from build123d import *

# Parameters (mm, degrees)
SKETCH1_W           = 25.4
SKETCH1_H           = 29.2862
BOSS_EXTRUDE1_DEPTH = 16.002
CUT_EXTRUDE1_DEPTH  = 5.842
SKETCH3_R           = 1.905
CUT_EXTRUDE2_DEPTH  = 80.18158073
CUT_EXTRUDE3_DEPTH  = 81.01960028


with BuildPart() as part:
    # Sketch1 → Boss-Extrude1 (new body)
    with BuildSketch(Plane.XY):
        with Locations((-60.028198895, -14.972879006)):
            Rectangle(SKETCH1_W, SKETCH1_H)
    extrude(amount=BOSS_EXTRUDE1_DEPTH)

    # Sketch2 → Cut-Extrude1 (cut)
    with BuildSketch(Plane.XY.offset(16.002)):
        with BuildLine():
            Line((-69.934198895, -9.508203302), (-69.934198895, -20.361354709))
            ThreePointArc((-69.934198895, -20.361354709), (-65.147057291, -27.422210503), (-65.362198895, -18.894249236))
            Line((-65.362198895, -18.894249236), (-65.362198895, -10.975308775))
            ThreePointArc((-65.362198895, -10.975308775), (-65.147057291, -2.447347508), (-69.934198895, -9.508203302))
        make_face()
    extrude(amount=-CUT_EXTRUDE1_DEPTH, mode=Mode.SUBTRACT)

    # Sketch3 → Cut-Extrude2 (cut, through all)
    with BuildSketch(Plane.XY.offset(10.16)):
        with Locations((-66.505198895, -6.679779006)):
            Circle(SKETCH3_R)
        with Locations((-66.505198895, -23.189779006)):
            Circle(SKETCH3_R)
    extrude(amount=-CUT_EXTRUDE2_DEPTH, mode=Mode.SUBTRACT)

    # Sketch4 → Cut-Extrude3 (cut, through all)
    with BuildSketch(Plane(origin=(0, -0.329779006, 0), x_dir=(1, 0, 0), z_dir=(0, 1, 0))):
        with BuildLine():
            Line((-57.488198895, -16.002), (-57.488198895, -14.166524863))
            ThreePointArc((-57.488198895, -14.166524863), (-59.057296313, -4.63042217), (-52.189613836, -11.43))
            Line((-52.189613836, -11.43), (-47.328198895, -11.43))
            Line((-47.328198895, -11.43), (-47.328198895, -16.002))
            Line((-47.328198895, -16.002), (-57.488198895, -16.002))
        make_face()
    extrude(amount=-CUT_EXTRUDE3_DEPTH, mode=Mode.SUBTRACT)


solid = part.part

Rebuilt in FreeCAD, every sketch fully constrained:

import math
import FreeCAD as App
import Part
import Sketcher
Q = App.Units.Quantity


def add_polygon(sketch, points):
    """Adds a closed chain of lines whose ends are joined by coincident constraints."""
    first, n = sketch.GeometryCount, len(points)
    for a, b in zip(points, points[1:] + points[:1]):
        sketch.addGeometry(Part.LineSegment(App.Vector(*a, 0), App.Vector(*b, 0)), False)
    for i in range(n):
        sketch.addConstraint(Sketcher.Constraint("Coincident", first + i, 2, first + (i + 1) % n, 1))

doc = App.newDocument("Part")
params = doc.addObject("Spreadsheet::Sheet", "Params")
for row, (alias, value) in enumerate([
    ("sketch1_width", "1 in"),
    ("sketch1_height", "1.153 in"),
    ("pad1_length", "0.63 in"),
    ("sketch2_radius", "0.175 in"),
    ("pocket1_length", "0.23 in"),
    ("sketch3_diameter", "0.15 in"),
    ("sketch4_radius", "0.2 in"),
    ("sketch4_width", "0.4 in"),
    ("sketch4_height", "0.18 in"),
], start=1):
    params.set(f"A{row}", alias)
    params.set(f"B{row}", "=" + value)
    params.setAlias(f"B{row}", alias)

body = doc.addObject("PartDesign::Body", "Body")

# Sketch on XY plane
sketch1 = doc.addObject("Sketcher::SketchObject", "Sketch")
body.addObject(sketch1)
sketch1.AttachmentSupport = (doc.XY_Plane, [""])
sketch1.MapMode = "FlatFace"
add_polygon(sketch1, [(-73, 0), (-73, -30), (-47, -30), (-47, 0)])  # lines 0-3
sketch1.addConstraint([
    Sketcher.Constraint("Vertical", 0),
    Sketcher.Constraint("Horizontal", 1),
    Sketcher.Constraint("Vertical", 2),
    Sketcher.Constraint("Horizontal", 3),
    Sketcher.Constraint("DistanceX", 1, 1, 1, 2, Q("1 in")),
    Sketcher.Constraint("DistanceY", 0, 2, 0, 1, Q("1.153 in")),
    Sketcher.Constraint("DistanceX", 0, 2, -1, 1, Q("72.728199 mm")),
    Sketcher.Constraint("DistanceY", 0, 2, -1, 1, Q("29.615979 mm")),
])
sketch1.setExpression("Constraints[8]", "Params.sketch1_width")
sketch1.setExpression("Constraints[9]", "Params.sketch1_height")
pad1 = doc.addObject("PartDesign::Pad", "Pad")
body.addObject(pad1)
pad1.Profile = sketch1
pad1.setExpression("Length", "Params.pad1_length")

# Sketch on XY plane
sketch2 = doc.addObject("Sketcher::SketchObject", "Sketch001")
body.addObject(sketch2)
sketch2.AttachmentSupport = (doc.XY_Plane, [""])
sketch2.MapMode = "FlatFace"
sketch2.AttachmentOffset = App.Placement(App.Vector(0, 0, 0.63 * 25.4), App.Rotation())
sketch2.addGeometry([
    Part.LineSegment(App.Vector(-69.9, -9.5, 0), App.Vector(-69.9, -20.4, 0)),
    Part.ArcOfCircle(Part.Circle(App.Vector(-66.5, -23.2, 0), App.Vector(0, 0, 1), 4.4), math.radians(140), math.radians(435)),
    Part.LineSegment(App.Vector(-65.4, -18.9, 0), App.Vector(-65.4, -11, 0)),
    Part.ArcOfCircle(Part.Circle(App.Vector(-66.5, -6.7, 0), App.Vector(0, 0, 1), 4.4), math.radians(-75), math.radians(220)),
], False)
sketch2.addConstraint([
    Sketcher.Constraint("Coincident", 0, 2, 1, 1),
    Sketcher.Constraint("Coincident", 1, 2, 2, 1),
    Sketcher.Constraint("Coincident", 2, 2, 3, 1),
    Sketcher.Constraint("Coincident", 3, 2, 0, 1),
    Sketcher.Constraint("Vertical", 0),
    Sketcher.Constraint("Vertical", 2),
    Sketcher.Constraint("Equal", 1, 3),
    Sketcher.Constraint("Vertical", 1, 3, 3, 3),
    Sketcher.Constraint("Radius", 1, Q("0.175 in")),
    Sketcher.Constraint("DistanceY", 1, 3, 3, 3, Q("0.65 in")),
    Sketcher.Constraint("DistanceX", 0, 2, 1, 2, Q("0.18 in")),
    Sketcher.Constraint("DistanceX", 0, 2, 1, 3, Q("0.135 in")),
    Sketcher.Constraint("DistanceX", 1, 3, -1, 1, Q("66.505199 mm")),
    Sketcher.Constraint("DistanceY", 1, 3, -1, 1, Q("23.189779 mm")),
])
sketch2.setExpression("Constraints[8]", "Params.sketch2_radius")
pocket1 = doc.addObject("PartDesign::Pocket", "Pocket")
body.addObject(pocket1)
pocket1.Profile = sketch2
pocket1.setExpression("Length", "Params.pocket1_length")

# Sketch on XY plane
sketch3 = doc.addObject("Sketcher::SketchObject", "Sketch002")
body.addObject(sketch3)
sketch3.AttachmentSupport = (doc.XY_Plane, [""])
sketch3.MapMode = "FlatFace"
sketch3.AttachmentOffset = App.Placement(App.Vector(0, 0, 0.4 * 25.4), App.Rotation())
sketch3.addGeometry([
    Part.Circle(App.Vector(-66.5, -6.7, 0), App.Vector(0, 0, 1), 1.9),
    Part.Circle(App.Vector(-66.5, -23.2, 0), App.Vector(0, 0, 1), 1.9),
], False)
sketch3.addConstraint([
    Sketcher.Constraint("Equal", 0, 1),
    Sketcher.Constraint("Vertical", 0, 3, 1, 3),
    Sketcher.Constraint("Diameter", 0, Q("0.15 in")),
    Sketcher.Constraint("DistanceY", 1, 3, 0, 3, Q("0.65 in")),
    Sketcher.Constraint("DistanceX", 0, 3, -1, 1, Q("66.505199 mm")),
    Sketcher.Constraint("DistanceY", 0, 3, -1, 1, Q("6.679779 mm")),
])
sketch3.setExpression("Constraints[2]", "Params.sketch3_diameter")
pocket2 = doc.addObject("PartDesign::Pocket", "Pocket001")
body.addObject(pocket2)
pocket2.Profile = sketch3
pocket2.Type = "ThroughAll"

# Sketch on XZ plane
sketch4 = doc.addObject("Sketcher::SketchObject", "Sketch003")
body.addObject(sketch4)
sketch4.AttachmentSupport = (doc.XZ_Plane, [""])
sketch4.MapMode = "FlatFace"
sketch4.AttachmentOffset = App.Placement(App.Vector(0, 0, 0.329779), App.Rotation())
sketch4.addGeometry([
    Part.LineSegment(App.Vector(-57.5, 14.2, 0), App.Vector(-57.5, 16, 0)),  # 0
    Part.LineSegment(App.Vector(-57.5, 16, 0), App.Vector(-47.3, 16, 0)),  # 1
    Part.LineSegment(App.Vector(-47.3, 16, 0), App.Vector(-47.3, 11.4, 0)),  # 2
    Part.LineSegment(App.Vector(-47.3, 11.4, 0), App.Vector(-52.2, 11.4, 0)),  # 3
    Part.ArcOfCircle(Part.Circle(App.Vector(-56.7, 9.1, 0), App.Vector(0, 0, 1), 5.1), math.radians(99), math.radians(387)),  # 4
], False)
sketch4.addConstraint([
    Sketcher.Constraint("Coincident", 0, 2, 1, 1),
    Sketcher.Constraint("Coincident", 1, 2, 2, 1),
    Sketcher.Constraint("Coincident", 2, 2, 3, 1),
    Sketcher.Constraint("Coincident", 3, 2, 4, 2),
    Sketcher.Constraint("Coincident", 4, 1, 0, 1),
    Sketcher.Constraint("Vertical", 0),
    Sketcher.Constraint("Horizontal", 1),
    Sketcher.Constraint("Vertical", 2),
    Sketcher.Constraint("Horizontal", 3),
    Sketcher.Constraint("Radius", 4, Q("0.2 in")),
    Sketcher.Constraint("DistanceX", 1, 1, 1, 2, Q("0.4 in")),
    Sketcher.Constraint("DistanceY", 2, 2, 2, 1, Q("0.18 in")),
    Sketcher.Constraint("DistanceY", -1, 1, 4, 3, Q("0.36 in")),
    Sketcher.Constraint("DistanceY", -1, 1, 0, 2, Q("0.63 in")),
    Sketcher.Constraint("DistanceX", 0, 2, 4, 3, Q("0.03 in")),
    Sketcher.Constraint("DistanceX", 4, 3, -1, 1, Q("56.726199 mm")),
])
sketch4.setExpression("Constraints[9]", "Params.sketch4_radius")
sketch4.setExpression("Constraints[10]", "Params.sketch4_width")
sketch4.setExpression("Constraints[11]", "Params.sketch4_height")
pocket3 = doc.addObject("PartDesign::Pocket", "Pocket002")
body.addObject(pocket3)
pocket3.Profile = sketch4
pocket3.Type = "ThroughAll"
pocket3.Reversed = True

doc.recompute()
